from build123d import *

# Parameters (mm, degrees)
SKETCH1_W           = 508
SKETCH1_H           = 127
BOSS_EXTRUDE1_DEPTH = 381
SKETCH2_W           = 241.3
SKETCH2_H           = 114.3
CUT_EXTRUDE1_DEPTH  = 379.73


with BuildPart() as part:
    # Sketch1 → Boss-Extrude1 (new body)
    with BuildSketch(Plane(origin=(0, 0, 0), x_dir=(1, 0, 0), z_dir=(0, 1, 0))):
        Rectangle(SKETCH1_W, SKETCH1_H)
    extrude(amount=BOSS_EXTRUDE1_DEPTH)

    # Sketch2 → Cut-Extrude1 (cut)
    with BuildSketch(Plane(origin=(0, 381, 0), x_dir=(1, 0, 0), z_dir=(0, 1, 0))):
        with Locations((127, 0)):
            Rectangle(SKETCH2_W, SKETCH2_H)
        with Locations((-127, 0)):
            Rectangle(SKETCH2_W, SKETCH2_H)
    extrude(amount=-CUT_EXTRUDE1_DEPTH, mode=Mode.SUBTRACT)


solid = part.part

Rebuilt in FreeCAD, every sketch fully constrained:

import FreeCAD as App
import Part
import Sketcher
Q = App.Units.Quantity


def add_polygon(sketch, points):
    """Adds a closed chain of lines whose ends are joined by coincident constraints."""
    first, n = sketch.GeometryCount, len(points)
    for a, b in zip(points, points[1:] + points[:1]):
        sketch.addGeometry(Part.LineSegment(App.Vector(*a, 0), App.Vector(*b, 0)), False)
    for i in range(n):
        sketch.addConstraint(Sketcher.Constraint("Coincident", first + i, 2, first + (i + 1) % n, 1))

doc = App.newDocument("Part")
params = doc.addObject("Spreadsheet::Sheet", "Params")
for row, (alias, value) in enumerate([
    ("sketch1_width", "20 in"),
    ("sketch1_height", "5 in"),
    ("pad1_length", "15 in"),
    ("sketch2_width", "9.5 in"),
    ("sketch2_height", "4.5 in"),
    ("pocket1_length", "14.95 in"),
], start=1):
    params.set(f"A{row}", alias)
    params.set(f"B{row}", "=" + value)
    params.setAlias(f"B{row}", alias)

body = doc.addObject("PartDesign::Body", "Body")

# Sketch on XZ plane
sketch1 = body.newObject("Sketcher::SketchObject", "Sketch")
sketch1.AttachmentSupport = (doc.getObject("XZ_Plane"), [""])
sketch1.MapMode = "FlatFace"
add_polygon(sketch1, [(-254, -64), (-254, 64), (254, 64), (254, -64)])  # lines 0-3
sketch1.addConstraint([
    Sketcher.Constraint("Vertical", 0),
    Sketcher.Constraint("Horizontal", 1),
    Sketcher.Constraint("Vertical", 2),
    Sketcher.Constraint("Horizontal", 3),
    Sketcher.Constraint("Symmetric", 0, 2, 2, 2, -1, 1),
    Sketcher.Constraint("DistanceX", 1, 1, 1, 2, Q("20 in")),
    Sketcher.Constraint("DistanceY", 0, 1, 0, 2, Q("5 in")),
])
sketch1.setExpression("Constraints[9]", "Params.sketch1_width")
sketch1.setExpression("Constraints[10]", "Params.sketch1_height")
pad1 = body.newObject("PartDesign::Pad", "Pad")
pad1.Profile = sketch1
pad1.setExpression("Length", "Params.pad1_length")
pad1.Reversed = True

# Sketch on XZ plane
sketch2 = body.newObject("Sketcher::SketchObject", "Sketch001")
sketch2.AttachmentSupport = (doc.getObject("XZ_Plane"), [""])
sketch2.MapMode = "FlatFace"
sketch2.AttachmentOffset = App.Placement(App.Vector(0, 0, -15 * 25.4), App.Rotation())
add_polygon(sketch2, [(6, -57), (6, 57), (248, 57), (248, -57)])  # lines 0-3
add_polygon(sketch2, [(-248, -57), (-248, 57), (-6, 57), (-6, -57)])  # lines 4-7
sketch2.addConstraint([
    Sketcher.Constraint("Vertical", 0),
    Sketcher.Constraint("Horizontal", 1),
    Sketcher.Constraint("Vertical", 2),
    Sketcher.Constraint("Horizontal", 3),
    Sketcher.Constraint("Vertical", 4),
    Sketcher.Constraint("Horizontal", 5),
    Sketcher.Constraint("Vertical", 6),
    Sketcher.Constraint("Horizontal", 7),
    Sketcher.Constraint("Symmetric", 2, 2, 4, 2, -1, 1),
    Sketcher.Constraint("Symmetric", 0, 2, 6, 2, -1, 1),
    Sketcher.Constraint("Horizontal", 1, 2, 4, 2),
    Sketcher.Constraint("DistanceX", 1, 1, 1, 2, Q("9.5 in")),
    Sketcher.Constraint("DistanceY", 0, 1, 0, 2, Q("4.5 in")),
    Sketcher.Constraint("DistanceX", 4, 2, 0, 2, Q("10 in")),
])
sketch2.setExpression("Constraints[19]", "Params.sketch2_width")
sketch2.setExpression("Constraints[20]", "Params.sketch2_height")
pocket1 = body.newObject("PartDesign::Pocket", "Pocket")
pocket1.Profile = sketch2
pocket1.setExpression("Length", "Params.pocket1_length")
pocket1.Reversed = True

doc.recompute()
